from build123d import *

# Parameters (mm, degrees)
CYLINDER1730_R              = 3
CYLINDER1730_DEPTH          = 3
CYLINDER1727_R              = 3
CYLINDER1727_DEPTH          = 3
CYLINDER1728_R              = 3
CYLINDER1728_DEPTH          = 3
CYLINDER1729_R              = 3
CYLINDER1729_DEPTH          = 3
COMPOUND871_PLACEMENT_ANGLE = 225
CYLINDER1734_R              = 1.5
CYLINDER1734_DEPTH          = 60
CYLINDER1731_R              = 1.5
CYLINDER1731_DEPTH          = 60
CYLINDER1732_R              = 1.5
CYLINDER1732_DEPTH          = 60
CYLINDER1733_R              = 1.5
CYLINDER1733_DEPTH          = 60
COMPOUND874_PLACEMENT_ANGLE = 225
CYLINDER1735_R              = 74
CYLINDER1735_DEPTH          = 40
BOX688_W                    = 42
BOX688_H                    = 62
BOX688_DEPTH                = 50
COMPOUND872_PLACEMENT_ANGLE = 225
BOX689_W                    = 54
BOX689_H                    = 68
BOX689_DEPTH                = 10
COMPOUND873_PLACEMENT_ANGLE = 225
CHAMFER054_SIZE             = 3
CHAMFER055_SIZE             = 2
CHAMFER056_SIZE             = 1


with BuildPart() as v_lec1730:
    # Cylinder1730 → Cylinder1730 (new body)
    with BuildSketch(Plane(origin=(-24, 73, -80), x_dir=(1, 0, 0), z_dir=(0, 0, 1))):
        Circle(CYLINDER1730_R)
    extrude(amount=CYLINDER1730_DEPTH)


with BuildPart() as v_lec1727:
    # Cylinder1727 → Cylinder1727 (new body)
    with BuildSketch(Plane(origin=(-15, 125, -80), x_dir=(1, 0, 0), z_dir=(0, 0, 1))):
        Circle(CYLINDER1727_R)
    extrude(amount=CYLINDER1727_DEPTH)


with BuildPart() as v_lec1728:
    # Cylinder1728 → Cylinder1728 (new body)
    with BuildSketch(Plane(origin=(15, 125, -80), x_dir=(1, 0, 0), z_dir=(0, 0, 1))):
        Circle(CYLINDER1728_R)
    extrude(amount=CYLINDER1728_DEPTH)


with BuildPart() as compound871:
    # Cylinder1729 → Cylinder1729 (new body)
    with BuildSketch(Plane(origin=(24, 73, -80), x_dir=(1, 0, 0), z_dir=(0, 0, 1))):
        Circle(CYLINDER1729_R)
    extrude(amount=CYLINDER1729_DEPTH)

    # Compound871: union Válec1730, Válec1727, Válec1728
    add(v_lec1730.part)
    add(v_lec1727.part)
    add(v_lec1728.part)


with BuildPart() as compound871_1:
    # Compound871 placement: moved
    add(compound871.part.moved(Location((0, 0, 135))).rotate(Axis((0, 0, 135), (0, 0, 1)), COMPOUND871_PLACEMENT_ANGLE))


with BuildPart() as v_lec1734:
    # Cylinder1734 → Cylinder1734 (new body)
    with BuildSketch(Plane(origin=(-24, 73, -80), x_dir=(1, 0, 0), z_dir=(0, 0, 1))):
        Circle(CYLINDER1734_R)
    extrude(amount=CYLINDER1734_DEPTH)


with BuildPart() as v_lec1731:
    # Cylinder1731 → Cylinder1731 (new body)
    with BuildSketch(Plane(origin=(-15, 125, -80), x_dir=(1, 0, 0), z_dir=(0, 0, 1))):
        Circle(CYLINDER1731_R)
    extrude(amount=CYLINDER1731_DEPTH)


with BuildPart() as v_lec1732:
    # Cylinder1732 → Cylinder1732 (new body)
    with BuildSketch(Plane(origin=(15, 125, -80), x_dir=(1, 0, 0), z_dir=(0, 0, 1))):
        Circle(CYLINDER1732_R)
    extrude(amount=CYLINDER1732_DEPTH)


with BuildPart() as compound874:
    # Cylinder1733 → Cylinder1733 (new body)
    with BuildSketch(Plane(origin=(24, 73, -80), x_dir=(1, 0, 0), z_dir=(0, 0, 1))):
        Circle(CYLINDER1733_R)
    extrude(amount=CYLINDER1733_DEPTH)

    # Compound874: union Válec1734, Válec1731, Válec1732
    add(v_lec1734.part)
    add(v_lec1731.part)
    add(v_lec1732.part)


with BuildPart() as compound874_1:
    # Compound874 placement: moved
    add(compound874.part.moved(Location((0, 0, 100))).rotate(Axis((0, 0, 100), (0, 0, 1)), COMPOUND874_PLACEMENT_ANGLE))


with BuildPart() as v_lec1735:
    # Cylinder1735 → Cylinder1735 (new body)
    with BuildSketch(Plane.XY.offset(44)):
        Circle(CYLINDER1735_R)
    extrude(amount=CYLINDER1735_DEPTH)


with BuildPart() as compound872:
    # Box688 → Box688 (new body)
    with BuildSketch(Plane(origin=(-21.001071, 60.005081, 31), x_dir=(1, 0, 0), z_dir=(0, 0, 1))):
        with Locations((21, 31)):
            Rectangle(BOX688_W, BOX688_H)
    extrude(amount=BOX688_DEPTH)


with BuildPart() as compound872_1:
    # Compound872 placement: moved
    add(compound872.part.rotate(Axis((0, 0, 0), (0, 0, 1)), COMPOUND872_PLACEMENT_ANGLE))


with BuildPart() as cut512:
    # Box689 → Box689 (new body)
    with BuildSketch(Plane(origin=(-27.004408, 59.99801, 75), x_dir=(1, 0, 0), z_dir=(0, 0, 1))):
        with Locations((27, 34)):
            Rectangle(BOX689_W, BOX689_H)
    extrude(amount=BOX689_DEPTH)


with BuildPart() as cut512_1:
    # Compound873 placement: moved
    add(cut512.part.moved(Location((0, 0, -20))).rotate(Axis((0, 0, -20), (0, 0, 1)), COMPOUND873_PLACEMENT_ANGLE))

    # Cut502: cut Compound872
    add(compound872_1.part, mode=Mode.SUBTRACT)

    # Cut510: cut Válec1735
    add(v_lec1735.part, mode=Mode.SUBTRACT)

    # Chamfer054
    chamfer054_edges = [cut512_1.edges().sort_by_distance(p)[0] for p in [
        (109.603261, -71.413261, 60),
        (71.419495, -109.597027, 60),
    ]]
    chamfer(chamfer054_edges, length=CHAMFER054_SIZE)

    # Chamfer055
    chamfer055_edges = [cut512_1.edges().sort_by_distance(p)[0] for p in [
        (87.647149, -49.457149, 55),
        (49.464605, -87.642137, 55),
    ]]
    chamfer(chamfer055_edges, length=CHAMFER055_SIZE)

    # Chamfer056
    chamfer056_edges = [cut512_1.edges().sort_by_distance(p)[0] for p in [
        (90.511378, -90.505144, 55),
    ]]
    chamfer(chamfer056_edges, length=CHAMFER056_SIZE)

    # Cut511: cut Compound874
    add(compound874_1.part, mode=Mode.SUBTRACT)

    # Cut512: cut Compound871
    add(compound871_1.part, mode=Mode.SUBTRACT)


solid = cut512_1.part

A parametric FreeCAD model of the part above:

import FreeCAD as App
import Part
import Sketcher


def edges_at(feature, points):
    """Names of the edges that pass closest to the given points."""
    edges = feature.Shape.Edges
    near = lambda p: min(range(len(edges)), key=lambda i: edges[i].distToShape(Part.Vertex(*p))[0])
    return sorted({f"Edge{near(p) + 1}" for p in points})

doc = App.newDocument("Part")
params = doc.addObject("Spreadsheet::Sheet", "Params")
for row, (alias, value) in enumerate([
    ("sketch1_diameter", "6 mm"),
    ("pad1_length", "3 mm"),
    ("sketch2_diameter", "6 mm"),
    ("pad2_length", "3 mm"),
    ("sketch3_diameter", "6 mm"),
    ("pad3_length", "3 mm"),
    ("sketch4_diameter", "6 mm"),
    ("pad4_length", "3 mm"),
    ("sketch5_diameter", "3 mm"),
    ("pad5_length", "60 mm"),
    ("sketch6_diameter", "3 mm"),
    ("pad6_length", "60 mm"),
    ("sketch7_diameter", "3 mm"),
    ("pad7_length", "60 mm"),
    ("sketch8_diameter", "3 mm"),
    ("pad8_length", "60 mm"),
    ("sketch9_diameter", "148 mm"),
    ("pad9_length", "40 mm"),
    ("sketch10_width", "42 mm"),
    ("sketch10_height", "62 mm"),
    ("pad10_length", "50 mm"),
    ("sketch11_width", "54 mm"),
    ("sketch11_height", "68 mm"),
    ("pad11_length", "10 mm"),
    ("chamfer_size", "3 mm"),
    ("chamfer2_size", "2 mm"),
    ("chamfer3_size", "1 mm"),
], start=1):
    params.set(f"A{row}", alias)
    params.set(f"B{row}", "=" + value)
    params.setAlias(f"B{row}", alias)

body = doc.addObject("PartDesign::Body", "Body")

# Sketch on XY plane
sketch1 = body.newObject("Sketcher::SketchObject", "Sketch")
sketch1.AttachmentSupport = (doc.getObject("XY_Plane"), [""])
sketch1.MapMode = "FlatFace"
sketch1.AttachmentOffset = App.Placement(App.Vector(0, 0, -80), App.Rotation())
sketch1.addGeometry(Part.Circle(App.Vector(-24, 73, 0), App.Vector(0, 0, 1), 3), False)
sketch1.addConstraint([
    Sketcher.Constraint("Diameter", 0, 6.0),
    Sketcher.Constraint("DistanceX", 0, 3, -1, 1, 24.0),
    Sketcher.Constraint("DistanceY", -1, 1, 0, 3, 73.0),
])
sketch1.setExpression("Constraints[0]", "Params.sketch1_diameter")
pad1 = body.newObject("PartDesign::Pad", "Pad")
pad1.Profile = sketch1
pad1.setExpression("Length", "Params.pad1_length")
body2 = doc.addObject("PartDesign::Body", "Body001")

# Sketch on XY plane
sketch2 = body2.newObject("Sketcher::SketchObject", "Sketch001")
sketch2.AttachmentSupport = (doc.getObject("XY_Plane001"), [""])
sketch2.MapMode = "FlatFace"
sketch2.AttachmentOffset = App.Placement(App.Vector(0, 0, -80), App.Rotation())
sketch2.addGeometry(Part.Circle(App.Vector(-15, 125, 0), App.Vector(0, 0, 1), 3), False)
sketch2.addConstraint([
    Sketcher.Constraint("Diameter", 0, 6.0),
    Sketcher.Constraint("DistanceX", 0, 3, -1, 1, 15.0),
    Sketcher.Constraint("DistanceY", -1, 1, 0, 3, 125.0),
])
sketch2.setExpression("Constraints[0]", "Params.sketch2_diameter")
pad2 = body2.newObject("PartDesign::Pad", "Pad001")
pad2.Profile = sketch2
pad2.setExpression("Length", "Params.pad2_length")
body3 = doc.addObject("PartDesign::Body", "Body002")

# Sketch on XY plane
sketch3 = body3.newObject("Sketcher::SketchObject", "Sketch002")
sketch3.AttachmentSupport = (doc.getObject("XY_Plane002"), [""])
sketch3.MapMode = "FlatFace"
sketch3.AttachmentOffset = App.Placement(App.Vector(0, 0, -80), App.Rotation())
sketch3.addGeometry(Part.Circle(App.Vector(15, 125, 0), App.Vector(0, 0, 1), 3), False)
sketch3.addConstraint([
    Sketcher.Constraint("Diameter", 0, 6.0),
    Sketcher.Constraint("DistanceX", -1, 1, 0, 3, 15.0),
    Sketcher.Constraint("DistanceY", -1, 1, 0, 3, 125.0),
])
sketch3.setExpression("Constraints[0]", "Params.sketch3_diameter")
pad3 = body3.newObject("PartDesign::Pad", "Pad002")
pad3.Profile = sketch3
pad3.setExpression("Length", "Params.pad3_length")
body4 = doc.addObject("PartDesign::Body", "Body003")
body4.AllowCompound = True

# Sketch on XY plane
sketch4 = body4.newObject("Sketcher::SketchObject", "Sketch003")
sketch4.AttachmentSupport = (doc.getObject("XY_Plane003"), [""])
sketch4.MapMode = "FlatFace"
sketch4.AttachmentOffset = App.Placement(App.Vector(0, 0, -80), App.Rotation())
sketch4.addGeometry(Part.Circle(App.Vector(24, 73, 0), App.Vector(0, 0, 1), 3), False)
sketch4.addConstraint([
    Sketcher.Constraint("Diameter", 0, 6.0),
    Sketcher.Constraint("DistanceX", -1, 1, 0, 3, 24.0),
    Sketcher.Constraint("DistanceY", -1, 1, 0, 3, 73.0),
])
sketch4.setExpression("Constraints[0]", "Params.sketch4_diameter")
pad4 = body4.newObject("PartDesign::Pad", "Pad003")
pad4.Profile = sketch4
pad4.setExpression("Length", "Params.pad4_length")
doc.recompute()

boolean = body4.newObject("PartDesign::Boolean", "Boolean")
boolean.Type = "Fuse"
boolean.addObjects([body])
doc.recompute()

boolean2 = body4.newObject("PartDesign::Boolean", "Boolean001")
boolean2.Type = "Fuse"
boolean2.addObjects([body2])
doc.recompute()

boolean3 = body4.newObject("PartDesign::Boolean", "Boolean002")
boolean3.Type = "Fuse"
boolean3.addObjects([body3])
body5 = doc.addObject("PartDesign::Body", "Body004")
body5.AllowCompound = True
doc.recompute()

body4.Placement = App.Placement(App.Vector(0, 0, 135), App.Rotation(App.Vector(0, 0, 1), 225))
boolean4 = body5.newObject("PartDesign::Boolean", "Boolean003")
boolean4.Type = "Fuse"
boolean4.addObjects([body4])
body6 = doc.addObject("PartDesign::Body", "Body005")

# Sketch on XY plane
sketch5 = body6.newObject("Sketcher::SketchObject", "Sketch004")
sketch5.AttachmentSupport = (doc.getObject("XY_Plane005"), [""])
sketch5.MapMode = "FlatFace"
sketch5.AttachmentOffset = App.Placement(App.Vector(0, 0, -80), App.Rotation())
sketch5.addGeometry(Part.Circle(App.Vector(-24, 73, 0), App.Vector(0, 0, 1), 1.5), False)
sketch5.addConstraint([
    Sketcher.Constraint("Diameter", 0, 3.0),
    Sketcher.Constraint("DistanceX", 0, 3, -1, 1, 24.0),
    Sketcher.Constraint("DistanceY", -1, 1, 0, 3, 73.0),
])
sketch5.setExpression("Constraints[0]", "Params.sketch5_diameter")
pad5 = body6.newObject("PartDesign::Pad", "Pad004")
pad5.Profile = sketch5
pad5.setExpression("Length", "Params.pad5_length")
body7 = doc.addObject("PartDesign::Body", "Body006")

# Sketch on XY plane
sketch6 = body7.newObject("Sketcher::SketchObject", "Sketch005")
sketch6.AttachmentSupport = (doc.getObject("XY_Plane006"), [""])
sketch6.MapMode = "FlatFace"
sketch6.AttachmentOffset = App.Placement(App.Vector(0, 0, -80), App.Rotation())
sketch6.addGeometry(Part.Circle(App.Vector(-15, 125, 0), App.Vector(0, 0, 1), 1.5), False)
sketch6.addConstraint([
    Sketcher.Constraint("Diameter", 0, 3.0),
    Sketcher.Constraint("DistanceX", 0, 3, -1, 1, 15.0),
    Sketcher.Constraint("DistanceY", -1, 1, 0, 3, 125.0),
])
sketch6.setExpression("Constraints[0]", "Params.sketch6_diameter")
pad6 = body7.newObject("PartDesign::Pad", "Pad005")
pad6.Profile = sketch6
pad6.setExpression("Length", "Params.pad6_length")
body8 = doc.addObject("PartDesign::Body", "Body007")

# Sketch on XY plane
sketch7 = body8.newObject("Sketcher::SketchObject", "Sketch006")
sketch7.AttachmentSupport = (doc.getObject("XY_Plane007"), [""])
sketch7.MapMode = "FlatFace"
sketch7.AttachmentOffset = App.Placement(App.Vector(0, 0, -80), App.Rotation())
sketch7.addGeometry(Part.Circle(App.Vector(15, 125, 0), App.Vector(0, 0, 1), 1.5), False)
sketch7.addConstraint([
    Sketcher.Constraint("Diameter", 0, 3.0),
    Sketcher.Constraint("DistanceX", -1, 1, 0, 3, 15.0),
    Sketcher.Constraint("DistanceY", -1, 1, 0, 3, 125.0),
])
sketch7.setExpression("Constraints[0]", "Params.sketch7_diameter")
pad7 = body8.newObject("PartDesign::Pad", "Pad006")
pad7.Profile = sketch7
pad7.setExpression("Length", "Params.pad7_length")
body9 = doc.addObject("PartDesign::Body", "Body008")
body9.AllowCompound = True

# Sketch on XY plane
sketch8 = body9.newObject("Sketcher::SketchObject", "Sketch007")
sketch8.AttachmentSupport = (doc.getObject("XY_Plane008"), [""])
sketch8.MapMode = "FlatFace"
sketch8.AttachmentOffset = App.Placement(App.Vector(0, 0, -80), App.Rotation())
sketch8.addGeometry(Part.Circle(App.Vector(24, 73, 0), App.Vector(0, 0, 1), 1.5), False)
sketch8.addConstraint([
    Sketcher.Constraint("Diameter", 0, 3.0),
    Sketcher.Constraint("DistanceX", -1, 1, 0, 3, 24.0),
    Sketcher.Constraint("DistanceY", -1, 1, 0, 3, 73.0),
])
sketch8.setExpression("Constraints[0]", "Params.sketch8_diameter")
pad8 = body9.newObject("PartDesign::Pad", "Pad007")
pad8.Profile = sketch8
pad8.setExpression("Length", "Params.pad8_length")
doc.recompute()

boolean5 = body9.newObject("PartDesign::Boolean", "Boolean004")
boolean5.Type = "Fuse"
boolean5.addObjects([body6])
doc.recompute()

boolean6 = body9.newObject("PartDesign::Boolean", "Boolean005")
boolean6.Type = "Fuse"
boolean6.addObjects([body7])
doc.recompute()

boolean7 = body9.newObject("PartDesign::Boolean", "Boolean006")
boolean7.Type = "Fuse"
boolean7.addObjects([body8])
body10 = doc.addObject("PartDesign::Body", "Body009")
body10.AllowCompound = True
doc.recompute()

body9.Placement = App.Placement(App.Vector(0, 0, 100), App.Rotation(App.Vector(0, 0, 1), 225))
boolean8 = body10.newObject("PartDesign::Boolean", "Boolean007")
boolean8.Type = "Fuse"
boolean8.addObjects([body9])
body11 = doc.addObject("PartDesign::Body", "Body010")

# Sketch on XY plane
sketch9 = body11.newObject("Sketcher::SketchObject", "Sketch008")
sketch9.AttachmentSupport = (doc.getObject("XY_Plane010"), [""])
sketch9.MapMode = "FlatFace"
sketch9.AttachmentOffset = App.Placement(App.Vector(0, 0, 44), App.Rotation())
sketch9.addGeometry(Part.Circle(App.Vector(0, 0, 0), App.Vector(0, 0, 1), 74), False)
sketch9.addConstraint([
    Sketcher.Constraint("Coincident", 0, 3, -1, 1),
    Sketcher.Constraint("Diameter", 0, 148.0),
])
sketch9.setExpression("Constraints[1]", "Params.sketch9_diameter")
pad9 = body11.newObject("PartDesign::Pad", "Pad008")
pad9.Profile = sketch9
pad9.setExpression("Length", "Params.pad9_length")
body12 = doc.addObject("PartDesign::Body", "Body011")

# Sketch on XY plane
sketch10 = body12.newObject("Sketcher::SketchObject", "Sketch009")
sketch10.AttachmentSupport = (doc.getObject("XY_Plane011"), [""])
sketch10.MapMode = "FlatFace"
sketch10.AttachmentOffset = App.Placement(App.Vector(0, 0, 31), App.Rotation())
sketch10.addGeometry([
    Part.LineSegment(App.Vector(-21.001071, 122.005081, 0), App.Vector(-21.001071, 60.005081, 0)),
    Part.LineSegment(App.Vector(-21.001071, 60.005081, 0), App.Vector(20.998929, 60.005081, 0)),
    Part.LineSegment(App.Vector(20.998929, 60.005081, 0), App.Vector(20.998929, 122.005081, 0)),
    Part.LineSegment(App.Vector(20.998929, 122.005081, 0), App.Vector(-21.001071, 122.005081, 0)),
], False)
sketch10.addConstraint([
    Sketcher.Constraint("Coincident", 0, 2, 1, 1),
    Sketcher.Constraint("Coincident", 1, 2, 2, 1),
    Sketcher.Constraint("Coincident", 2, 2, 3, 1),
    Sketcher.Constraint("Coincident", 3, 2, 0, 1),
    Sketcher.Constraint("Vertical", 0),
    Sketcher.Constraint("Horizontal", 1),
    Sketcher.Constraint("Vertical", 2),
    Sketcher.Constraint("Horizontal", 3),
    Sketcher.Constraint("DistanceX", 1, 1, 1, 2, 42.0),
    Sketcher.Constraint("DistanceY", 0, 2, 0, 1, 62.0),
    Sketcher.Constraint("DistanceX", 0, 2, -1, 1, 21.001071),
    Sketcher.Constraint("DistanceY", -1, 1, 0, 2, 60.005081),
])
sketch10.setExpression("Constraints[8]", "Params.sketch10_width")
sketch10.setExpression("Constraints[9]", "Params.sketch10_height")
pad10 = body12.newObject("PartDesign::Pad", "Pad009")
pad10.Profile = sketch10
pad10.setExpression("Length", "Params.pad10_length")
body13 = doc.addObject("PartDesign::Body", "Body012")
doc.recompute()

body12.Placement = App.Placement(App.Vector(0, 0, 0), App.Rotation(App.Vector(0, 0, 1), 225))
boolean9 = body13.newObject("PartDesign::Boolean", "Boolean008")
boolean9.Type = "Fuse"
boolean9.addObjects([body12])
body14 = doc.addObject("PartDesign::Body", "Body013")

# Sketch on XY plane
sketch11 = body14.newObject("Sketcher::SketchObject", "Sketch010")
sketch11.AttachmentSupport = (doc.getObject("XY_Plane013"), [""])
sketch11.MapMode = "FlatFace"
sketch11.AttachmentOffset = App.Placement(App.Vector(0, 0, 75), App.Rotation())
sketch11.addGeometry([
    Part.LineSegment(App.Vector(-27.004408, 127.99801, 0), App.Vector(-27.004408, 59.99801, 0)),
    Part.LineSegment(App.Vector(-27.004408, 59.99801, 0), App.Vector(26.995592, 59.99801, 0)),
    Part.LineSegment(App.Vector(26.995592, 59.99801, 0), App.Vector(26.995592, 127.99801, 0)),
    Part.LineSegment(App.Vector(26.995592, 127.99801, 0), App.Vector(-27.004408, 127.99801, 0)),
], False)
sketch11.addConstraint([
    Sketcher.Constraint("Coincident", 0, 2, 1, 1),
    Sketcher.Constraint("Coincident", 1, 2, 2, 1),
    Sketcher.Constraint("Coincident", 2, 2, 3, 1),
    Sketcher.Constraint("Coincident", 3, 2, 0, 1),
    Sketcher.Constraint("Vertical", 0),
    Sketcher.Constraint("Horizontal", 1),
    Sketcher.Constraint("Vertical", 2),
    Sketcher.Constraint("Horizontal", 3),
    Sketcher.Constraint("DistanceX", 1, 1, 1, 2, 54.0),
    Sketcher.Constraint("DistanceY", 0, 2, 0, 1, 68.0),
    Sketcher.Constraint("DistanceX", 0, 2, -1, 1, 27.004408),
    Sketcher.Constraint("DistanceY", -1, 1, 0, 2, 59.99801),
])
sketch11.setExpression("Constraints[8]", "Params.sketch11_width")
sketch11.setExpression("Constraints[9]", "Params.sketch11_height")
pad11 = body14.newObject("PartDesign::Pad", "Pad010")
pad11.Profile = sketch11
pad11.setExpression("Length", "Params.pad11_length")
body15 = doc.addObject("PartDesign::Body", "Body014")
doc.recompute()

body14.Placement = App.Placement(App.Vector(0, 0, -20), App.Rotation(App.Vector(0, 0, 1), 225))
boolean10 = body15.newObject("PartDesign::Boolean", "Boolean009")
boolean10.Type = "Fuse"
boolean10.addObjects([body14])
doc.recompute()

boolean11 = body15.newObject("PartDesign::Boolean", "Boolean010")
boolean11.Type = "Cut"
boolean11.addObjects([body13])
doc.recompute()

boolean12 = body15.newObject("PartDesign::Boolean", "Boolean011")
boolean12.Type = "Cut"
boolean12.addObjects([body11])
doc.recompute()

chamfer = body15.newObject("PartDesign::Chamfer", "Chamfer")
chamfer.Base = (boolean12, edges_at(boolean12, [(109.603, -71.413, 60), (71.419, -109.597, 60)]))
chamfer.setExpression("Size", "Params.chamfer_size")
doc.recompute()

chamfer2 = body15.newObject("PartDesign::Chamfer", "Chamfer001")
chamfer2.Base = (chamfer, edges_at(chamfer, [(87.647, -49.457, 55), (49.465, -87.642, 55)]))
chamfer2.setExpression("Size", "Params.chamfer2_size")
doc.recompute()

chamfer3 = body15.newObject("PartDesign::Chamfer", "Chamfer002")
chamfer3.Base = (chamfer2, edges_at(chamfer2, [(90.511, -90.505, 55)]))
chamfer3.setExpression("Size", "Params.chamfer3_size")
doc.recompute()

boolean13 = body15.newObject("PartDesign::Boolean", "Boolean012")
boolean13.Type = "Cut"
boolean13.addObjects([body10])
doc.recompute()

boolean14 = body15.newObject("PartDesign::Boolean", "Boolean013")
boolean14.Type = "Cut"
boolean14.addObjects([body5])

doc.recompute()
